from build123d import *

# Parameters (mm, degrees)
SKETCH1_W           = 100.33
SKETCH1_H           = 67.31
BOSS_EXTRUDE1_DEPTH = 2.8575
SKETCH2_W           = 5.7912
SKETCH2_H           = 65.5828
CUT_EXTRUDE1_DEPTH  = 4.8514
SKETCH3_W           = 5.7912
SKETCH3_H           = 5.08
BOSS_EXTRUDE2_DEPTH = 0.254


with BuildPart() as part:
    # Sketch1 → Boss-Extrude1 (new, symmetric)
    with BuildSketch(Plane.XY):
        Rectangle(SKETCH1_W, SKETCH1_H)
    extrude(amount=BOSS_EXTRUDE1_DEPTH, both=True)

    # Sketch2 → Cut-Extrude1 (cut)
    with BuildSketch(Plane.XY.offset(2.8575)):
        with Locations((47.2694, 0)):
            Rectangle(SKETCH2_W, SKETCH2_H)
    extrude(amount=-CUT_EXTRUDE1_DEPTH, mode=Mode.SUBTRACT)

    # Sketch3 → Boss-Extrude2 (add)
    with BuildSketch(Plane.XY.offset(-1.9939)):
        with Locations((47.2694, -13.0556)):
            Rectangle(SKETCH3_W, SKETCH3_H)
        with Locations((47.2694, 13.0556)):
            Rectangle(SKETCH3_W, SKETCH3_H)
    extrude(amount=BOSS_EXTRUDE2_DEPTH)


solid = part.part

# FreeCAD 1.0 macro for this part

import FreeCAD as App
import Part
import Sketcher
from FreeCAD import Vector
Q = App.Units.Quantity

doc = App.newDocument("Part")
body = doc.addObject("PartDesign::Body", "Body")

sketch1 = body.newObject("Sketcher::SketchObject", "Sketch")
sketch1.AttachmentSupport = (doc.getObject("XY_Plane"), [""])
sketch1.MapMode = "FlatFace"
sketch1.addGeometry([
    Part.LineSegment(Vector(-50.165, 33.655, 0), Vector(-50.165, -33.655, 0)),
    Part.LineSegment(Vector(-50.165, -33.655, 0), Vector(50.165, -33.655, 0)),
    Part.LineSegment(Vector(50.165, -33.655, 0), Vector(50.165, 33.655, 0)),
    Part.LineSegment(Vector(50.165, 33.655, 0), Vector(-50.165, 33.655, 0)),
], False)
sketch1.addConstraint([
    Sketcher.Constraint("Coincident", 0, 2, 1, 1),
    Sketcher.Constraint("Coincident", 1, 2, 2, 1),
    Sketcher.Constraint("Coincident", 2, 2, 3, 1),
    Sketcher.Constraint("Coincident", 3, 2, 0, 1),
    Sketcher.Constraint("Vertical", 0),
    Sketcher.Constraint("Horizontal", 1),
    Sketcher.Constraint("Vertical", 2),
    Sketcher.Constraint("Horizontal", 3),
    Sketcher.Constraint("Symmetric", 0, 2, 2, 2, -1, 1),
    Sketcher.Constraint("DistanceX", 1, 1, 1, 2, Q("3.95 in")),
    Sketcher.Constraint("DistanceY", 0, 2, 0, 1, Q("2.65 in")),
])
pad1 = body.newObject("PartDesign::Pad", "Pad")
pad1.Profile = sketch1
pad1.Length = Q("0.225 in")
pad1.Midplane = True

sketch2 = body.newObject("Sketcher::SketchObject", "Sketch001")
sketch2.AttachmentSupport = (doc.getObject("XY_Plane"), [""])
sketch2.MapMode = "FlatFace"
sketch2.AttachmentOffset = App.Placement(Vector(0, 0, 0.1125 * 25.4), App.Rotation())
sketch2.addGeometry([
    Part.LineSegment(Vector(44.3738, 32.7914, 0), Vector(44.3738, -32.7914, 0)),
    Part.LineSegment(Vector(44.3738, -32.7914, 0), Vector(50.165, -32.7914, 0)),
    Part.LineSegment(Vector(50.165, -32.7914, 0), Vector(50.165, 32.7914, 0)),
    Part.LineSegment(Vector(50.165, 32.7914, 0), Vector(44.3738, 32.7914, 0)),
], False)
sketch2.addConstraint([
    Sketcher.Constraint("Coincident", 0, 2, 1, 1),
    Sketcher.Constraint("Coincident", 1, 2, 2, 1),
    Sketcher.Constraint("Coincident", 2, 2, 3, 1),
    Sketcher.Constraint("Coincident", 3, 2, 0, 1),
    Sketcher.Constraint("Vertical", 0),
    Sketcher.Constraint("Horizontal", 1),
    Sketcher.Constraint("Vertical", 2),
    Sketcher.Constraint("Horizontal", 3),
    Sketcher.Constraint("DistanceX", 1, 1, 1, 2, Q("0.228 in")),
    Sketcher.Constraint("DistanceY", 0, 2, 0, 1, Q("2.582 in")),
    Sketcher.Constraint("DistanceX", -1, 1, 0, 2, Q("1.747 in")),
    Sketcher.Constraint("DistanceY", 0, 2, -1, 1, Q("1.291 in")),
])
pocket1 = body.newObject("PartDesign::Pocket", "Pocket")
pocket1.Profile = sketch2
pocket1.Length = Q("0.191 in")

sketch3 = body.newObject("Sketcher::SketchObject", "Sketch002")
sketch3.AttachmentSupport = (doc.getObject("XY_Plane"), [""])
sketch3.MapMode = "FlatFace"
sketch3.AttachmentOffset = App.Placement(Vector(0, 0, -0.0785 * 25.4), App.Rotation())
sketch3.addGeometry([
    Part.LineSegment(Vector(44.3738, -10.5156, 0), Vector(44.3738, -15.5956, 0)),
    Part.LineSegment(Vector(44.3738, -15.5956, 0), Vector(50.165, -15.5956, 0)),
    Part.LineSegment(Vector(50.165, -15.5956, 0), Vector(50.165, -10.5156, 0)),
    Part.LineSegment(Vector(50.165, -10.5156, 0), Vector(44.3738, -10.5156, 0)),
    Part.LineSegment(Vector(44.3738, 15.5956, 0), Vector(44.3738, 10.5156, 0)),
    Part.LineSegment(Vector(44.3738, 10.5156, 0), Vector(50.165, 10.5156, 0)),
    Part.LineSegment(Vector(50.165, 10.5156, 0), Vector(50.165, 15.5956, 0)),
    Part.LineSegment(Vector(50.165, 15.5956, 0), Vector(44.3738, 15.5956, 0)),
], False)
sketch3.addConstraint([
    Sketcher.Constraint("Coincident", 0, 2, 1, 1),
    Sketcher.Constraint("Coincident", 1, 2, 2, 1),
    Sketcher.Constraint("Coincident", 2, 2, 3, 1),
    Sketcher.Constraint("Coincident", 3, 2, 0, 1),
    Sketcher.Constraint("Coincident", 4, 2, 5, 1),
    Sketcher.Constraint("Coincident", 5, 2, 6, 1),
    Sketcher.Constraint("Coincident", 6, 2, 7, 1),
    Sketcher.Constraint("Coincident", 7, 2, 4, 1),
    Sketcher.Constraint("Vertical", 0),
    Sketcher.Constraint("Horizontal", 1),
    Sketcher.Constraint("Vertical", 2),
    Sketcher.Constraint("Horizontal", 3),
    Sketcher.Constraint("Vertical", 4),
    Sketcher.Constraint("Horizontal", 5),
    Sketcher.Constraint("Vertical", 6),
    Sketcher.Constraint("Horizontal", 7),
    Sketcher.Constraint("Symmetric", 3, 2, 4, 2, -1),
    Sketcher.Constraint("Symmetric", 1, 2, 6, 2, -1),
    Sketcher.Constraint("DistanceY", 0, 2, 0, 1, Q("0.2 in")),
    Sketcher.Constraint("DistanceX", 1, 1, 1, 2, Q("0.228 in")),
    Sketcher.Constraint("DistanceX", -1, 1, 0, 2, Q("1.747 in")),
    Sketcher.Constraint("DistanceY", 0, 2, -1, 1, Q("0.614 in")),
])
pad2 = body.newObject("PartDesign::Pad", "Pad001")
pad2.Profile = sketch3
pad2.Length = Q("0.01 in")

doc.recompute()
